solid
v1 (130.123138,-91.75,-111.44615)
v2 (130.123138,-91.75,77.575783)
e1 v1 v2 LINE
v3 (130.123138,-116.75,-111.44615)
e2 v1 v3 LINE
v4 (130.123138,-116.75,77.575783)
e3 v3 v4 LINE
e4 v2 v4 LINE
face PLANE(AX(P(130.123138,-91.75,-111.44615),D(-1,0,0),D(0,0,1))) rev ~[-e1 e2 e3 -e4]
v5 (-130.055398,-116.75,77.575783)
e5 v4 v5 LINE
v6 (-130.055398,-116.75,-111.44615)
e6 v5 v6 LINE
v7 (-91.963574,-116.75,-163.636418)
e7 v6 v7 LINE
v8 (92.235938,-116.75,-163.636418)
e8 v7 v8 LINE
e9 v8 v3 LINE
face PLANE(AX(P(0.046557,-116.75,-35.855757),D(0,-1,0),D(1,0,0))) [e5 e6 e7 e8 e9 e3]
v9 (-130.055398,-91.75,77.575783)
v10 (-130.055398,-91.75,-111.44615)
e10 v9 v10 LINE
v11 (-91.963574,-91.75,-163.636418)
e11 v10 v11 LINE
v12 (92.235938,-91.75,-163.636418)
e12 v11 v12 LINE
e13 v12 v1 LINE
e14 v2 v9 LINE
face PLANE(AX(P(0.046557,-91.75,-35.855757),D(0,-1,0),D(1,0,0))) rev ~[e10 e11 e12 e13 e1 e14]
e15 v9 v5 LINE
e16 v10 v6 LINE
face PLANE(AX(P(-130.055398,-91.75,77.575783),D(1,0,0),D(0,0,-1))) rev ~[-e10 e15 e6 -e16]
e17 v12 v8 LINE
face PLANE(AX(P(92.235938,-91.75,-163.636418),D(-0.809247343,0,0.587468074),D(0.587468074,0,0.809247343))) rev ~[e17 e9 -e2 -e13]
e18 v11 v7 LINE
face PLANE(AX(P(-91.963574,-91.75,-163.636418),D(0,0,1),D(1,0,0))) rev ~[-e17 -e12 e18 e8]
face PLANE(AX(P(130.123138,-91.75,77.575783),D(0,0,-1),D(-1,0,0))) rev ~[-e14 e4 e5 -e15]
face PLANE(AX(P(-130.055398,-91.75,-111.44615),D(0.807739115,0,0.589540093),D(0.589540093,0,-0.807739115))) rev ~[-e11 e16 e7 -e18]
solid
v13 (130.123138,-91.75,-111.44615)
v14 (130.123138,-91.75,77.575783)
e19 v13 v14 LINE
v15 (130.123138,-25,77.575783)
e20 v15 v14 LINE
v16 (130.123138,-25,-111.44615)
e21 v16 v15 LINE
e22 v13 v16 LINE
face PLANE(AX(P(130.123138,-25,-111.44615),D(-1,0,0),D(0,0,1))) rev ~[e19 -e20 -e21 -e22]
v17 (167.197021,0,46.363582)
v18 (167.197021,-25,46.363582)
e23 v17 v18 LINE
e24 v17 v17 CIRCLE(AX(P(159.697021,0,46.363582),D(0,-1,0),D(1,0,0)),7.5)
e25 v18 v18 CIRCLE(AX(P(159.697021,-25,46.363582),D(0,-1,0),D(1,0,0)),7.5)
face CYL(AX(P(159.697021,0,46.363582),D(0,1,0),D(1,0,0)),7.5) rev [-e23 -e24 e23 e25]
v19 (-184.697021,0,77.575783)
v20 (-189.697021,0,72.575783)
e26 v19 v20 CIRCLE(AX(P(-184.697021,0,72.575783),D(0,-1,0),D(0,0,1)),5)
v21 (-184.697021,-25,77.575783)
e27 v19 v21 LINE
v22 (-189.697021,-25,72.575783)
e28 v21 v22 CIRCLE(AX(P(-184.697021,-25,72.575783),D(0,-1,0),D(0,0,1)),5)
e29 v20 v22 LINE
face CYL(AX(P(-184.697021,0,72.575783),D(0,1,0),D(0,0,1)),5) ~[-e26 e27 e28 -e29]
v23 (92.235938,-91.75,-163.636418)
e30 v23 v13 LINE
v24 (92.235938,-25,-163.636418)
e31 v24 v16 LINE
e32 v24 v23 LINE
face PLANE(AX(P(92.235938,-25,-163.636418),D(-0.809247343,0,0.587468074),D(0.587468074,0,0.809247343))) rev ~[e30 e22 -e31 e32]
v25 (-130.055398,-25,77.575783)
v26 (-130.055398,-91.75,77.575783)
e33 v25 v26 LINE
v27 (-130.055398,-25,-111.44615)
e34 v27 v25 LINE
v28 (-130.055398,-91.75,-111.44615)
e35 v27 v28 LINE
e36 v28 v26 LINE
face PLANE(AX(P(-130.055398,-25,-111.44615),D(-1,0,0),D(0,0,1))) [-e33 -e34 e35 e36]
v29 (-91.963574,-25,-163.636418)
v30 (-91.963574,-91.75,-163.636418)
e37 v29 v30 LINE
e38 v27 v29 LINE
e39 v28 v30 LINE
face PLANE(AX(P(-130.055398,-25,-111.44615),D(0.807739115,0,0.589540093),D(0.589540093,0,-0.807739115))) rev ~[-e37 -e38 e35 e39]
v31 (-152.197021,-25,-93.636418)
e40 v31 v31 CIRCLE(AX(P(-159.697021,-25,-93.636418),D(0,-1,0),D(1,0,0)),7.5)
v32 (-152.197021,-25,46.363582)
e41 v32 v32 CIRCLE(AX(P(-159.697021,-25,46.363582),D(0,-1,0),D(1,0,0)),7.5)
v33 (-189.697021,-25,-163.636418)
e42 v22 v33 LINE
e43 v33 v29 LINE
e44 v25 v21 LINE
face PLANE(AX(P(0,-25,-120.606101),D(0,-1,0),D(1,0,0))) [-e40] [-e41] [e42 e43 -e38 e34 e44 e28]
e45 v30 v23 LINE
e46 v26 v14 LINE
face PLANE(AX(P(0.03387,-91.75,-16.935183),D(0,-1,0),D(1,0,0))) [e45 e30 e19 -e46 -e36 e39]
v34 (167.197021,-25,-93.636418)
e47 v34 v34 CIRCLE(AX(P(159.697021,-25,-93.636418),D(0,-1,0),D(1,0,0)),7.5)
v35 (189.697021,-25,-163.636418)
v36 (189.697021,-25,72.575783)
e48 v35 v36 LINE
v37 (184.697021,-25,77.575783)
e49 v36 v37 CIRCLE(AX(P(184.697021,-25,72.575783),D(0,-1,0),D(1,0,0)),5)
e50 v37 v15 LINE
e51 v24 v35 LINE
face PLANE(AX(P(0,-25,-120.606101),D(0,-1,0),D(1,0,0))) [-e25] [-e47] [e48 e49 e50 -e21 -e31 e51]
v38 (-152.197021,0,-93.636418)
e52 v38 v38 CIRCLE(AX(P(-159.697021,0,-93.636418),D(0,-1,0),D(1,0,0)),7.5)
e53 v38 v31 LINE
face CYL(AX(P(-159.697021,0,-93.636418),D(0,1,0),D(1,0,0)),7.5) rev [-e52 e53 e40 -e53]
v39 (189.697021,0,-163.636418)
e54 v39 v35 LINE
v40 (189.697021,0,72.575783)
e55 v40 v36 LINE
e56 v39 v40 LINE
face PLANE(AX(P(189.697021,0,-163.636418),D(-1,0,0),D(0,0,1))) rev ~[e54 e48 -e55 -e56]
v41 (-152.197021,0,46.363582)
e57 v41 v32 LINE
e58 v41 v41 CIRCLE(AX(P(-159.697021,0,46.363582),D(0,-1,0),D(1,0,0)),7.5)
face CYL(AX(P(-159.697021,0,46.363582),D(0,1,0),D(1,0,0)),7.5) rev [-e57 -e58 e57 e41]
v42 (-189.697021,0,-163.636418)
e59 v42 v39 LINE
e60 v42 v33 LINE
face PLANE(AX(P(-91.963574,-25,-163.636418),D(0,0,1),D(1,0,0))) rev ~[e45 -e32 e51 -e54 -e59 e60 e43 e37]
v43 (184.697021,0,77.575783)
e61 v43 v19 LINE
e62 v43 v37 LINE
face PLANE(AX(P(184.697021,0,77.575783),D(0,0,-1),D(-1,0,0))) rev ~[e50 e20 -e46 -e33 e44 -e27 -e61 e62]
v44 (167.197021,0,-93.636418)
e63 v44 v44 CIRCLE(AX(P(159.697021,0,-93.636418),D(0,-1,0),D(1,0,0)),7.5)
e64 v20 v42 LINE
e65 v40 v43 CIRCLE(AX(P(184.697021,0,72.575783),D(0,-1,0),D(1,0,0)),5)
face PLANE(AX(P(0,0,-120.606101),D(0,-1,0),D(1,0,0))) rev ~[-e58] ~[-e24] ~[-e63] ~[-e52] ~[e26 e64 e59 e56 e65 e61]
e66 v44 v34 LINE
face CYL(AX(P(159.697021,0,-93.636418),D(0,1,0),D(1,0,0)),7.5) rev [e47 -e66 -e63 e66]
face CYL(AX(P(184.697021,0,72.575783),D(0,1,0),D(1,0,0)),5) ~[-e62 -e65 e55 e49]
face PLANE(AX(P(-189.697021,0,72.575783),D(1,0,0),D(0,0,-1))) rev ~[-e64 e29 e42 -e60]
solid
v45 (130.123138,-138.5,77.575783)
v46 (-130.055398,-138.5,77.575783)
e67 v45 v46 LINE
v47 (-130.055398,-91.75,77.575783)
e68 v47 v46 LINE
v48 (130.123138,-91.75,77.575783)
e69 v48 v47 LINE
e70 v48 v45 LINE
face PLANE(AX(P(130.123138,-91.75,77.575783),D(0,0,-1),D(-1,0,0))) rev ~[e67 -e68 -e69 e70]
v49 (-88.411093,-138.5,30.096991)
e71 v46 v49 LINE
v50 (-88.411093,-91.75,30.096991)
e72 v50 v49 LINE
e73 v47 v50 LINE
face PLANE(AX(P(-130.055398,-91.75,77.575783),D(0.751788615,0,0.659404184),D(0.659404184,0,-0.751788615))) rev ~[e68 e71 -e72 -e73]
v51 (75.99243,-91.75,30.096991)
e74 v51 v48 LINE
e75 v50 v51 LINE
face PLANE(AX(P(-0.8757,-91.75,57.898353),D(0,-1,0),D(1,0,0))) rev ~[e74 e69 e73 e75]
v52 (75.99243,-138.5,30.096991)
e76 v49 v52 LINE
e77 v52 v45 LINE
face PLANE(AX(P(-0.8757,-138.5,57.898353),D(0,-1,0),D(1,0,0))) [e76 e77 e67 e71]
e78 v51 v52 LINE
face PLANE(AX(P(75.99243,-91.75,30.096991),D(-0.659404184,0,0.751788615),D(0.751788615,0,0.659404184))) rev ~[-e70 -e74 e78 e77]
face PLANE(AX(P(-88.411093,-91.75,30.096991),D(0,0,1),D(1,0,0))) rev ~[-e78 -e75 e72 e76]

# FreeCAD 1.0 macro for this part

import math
import FreeCAD as App
import Part
import Sketcher
Q = App.Units.Quantity


def add_polygon(sketch, points):
    """Adds a closed chain of lines whose ends are joined by coincident constraints."""
    first, n = sketch.GeometryCount, len(points)
    for a, b in zip(points, points[1:] + points[:1]):
        sketch.addGeometry(Part.LineSegment(App.Vector(*a, 0), App.Vector(*b, 0)), False)
    for i in range(n):
        sketch.addConstraint(Sketcher.Constraint("Coincident", first + i, 2, first + (i + 1) % n, 1))

doc = App.newDocument("Part")
body = doc.addObject("PartDesign::Body", "Body")

sketch1 = body.newObject("Sketcher::SketchObject", "Sketch")
sketch1.AttachmentSupport = (doc.getObject("XZ_Plane"), [""])
sketch1.MapMode = "FlatFace"
sketch1.addGeometry([
    Part.LineSegment(App.Vector(189.697021, -163.636418, 0), App.Vector(189.697021, 72.575783, 0)),
    Part.ArcOfCircle(Part.Circle(App.Vector(184.697021, 72.575783, 0), App.Vector(0, 0, 1), 5), math.radians(0), math.radians(90)),
    Part.LineSegment(App.Vector(184.697021, 77.575783, 0), App.Vector(-184.697021, 77.575783, 0)),
    Part.ArcOfCircle(Part.Circle(App.Vector(-184.697021, 72.575783, 0), App.Vector(0, 0, 1), 5), math.radians(90), math.radians(180)),
    Part.LineSegment(App.Vector(-189.697021, 72.575783, 0), App.Vector(-189.697021, -163.636418, 0)),
    Part.LineSegment(App.Vector(-189.697021, -163.636418, 0), App.Vector(189.697021, -163.636418, 0)),
    Part.Circle(App.Vector(-159.697021, -93.636418, 0), App.Vector(0, 0, 1), 7.5),
    Part.Circle(App.Vector(159.697021, -93.636418, 0), App.Vector(0, 0, 1), 7.5),
    Part.Circle(App.Vector(-159.697021, 46.363582, 0), App.Vector(0, 0, 1), 7.5),
    Part.Circle(App.Vector(159.697021, 46.363582, 0), App.Vector(0, 0, 1), 7.5),
], False)
sketch1.addConstraint([
    Sketcher.Constraint("Tangent", 0, 2, 1, 1),
    Sketcher.Constraint("Tangent", 1, 2, 2, 1),
    Sketcher.Constraint("Tangent", 2, 2, 3, 1),
    Sketcher.Constraint("Tangent", 3, 2, 4, 1),
    Sketcher.Constraint("Coincident", 4, 2, 5, 1),
    Sketcher.Constraint("Coincident", 5, 2, 0, 1),
    Sketcher.Constraint("Vertical", 0),
    Sketcher.Constraint("Horizontal", 2),
    Sketcher.Constraint("Vertical", 4),
    Sketcher.Constraint("Horizontal", 5),
    Sketcher.Constraint("Equal", 1, 3),
    Sketcher.Constraint("Equal", 6, 7),
    Sketcher.Constraint("Equal", 7, 8),
    Sketcher.Constraint("Equal", 8, 9),
    Sketcher.Constraint("Symmetric", 6, 3, 7, 3, -2),
    Sketcher.Constraint("Symmetric", 8, 3, 9, 3, -2),
    Sketcher.Constraint("Vertical", 6, 3, 8, 3),
    Sketcher.Constraint("Diameter", 6, Q("15 mm")),
    Sketcher.Constraint("Radius", 1, Q("5 mm")),
    Sketcher.Constraint("DistanceX", 3, 3, 6, 3, Q("25 mm")),
    Sketcher.Constraint("DistanceX", 7, 3, 1, 3, Q("25 mm")),
    Sketcher.Constraint("DistanceY", 6, 3, 8, 3, Q("140 mm")),
    Sketcher.Constraint("DistanceY", 4, 2, 6, 3, Q("70 mm")),
    Sketcher.Constraint("DistanceY", 0, 1, 0, 2, Q("236.212202 mm")),
    Sketcher.Constraint("DistanceX", 2, 2, 2, 1, Q("369.394041 mm")),
    Sketcher.Constraint("DistanceY", 6, 3, -1, 1, Q("93.636418 mm")),
])
pad1 = body.newObject("PartDesign::Pad", "Pad")
pad1.Profile = sketch1
pad1.Length = 25

sketch2 = body.newObject("Sketcher::SketchObject", "Sketch001")
sketch2.AttachmentSupport = (doc.getObject("XZ_Plane"), [""])
sketch2.MapMode = "FlatFace"
sketch2.AttachmentOffset = App.Placement(App.Vector(0, 0, 25), App.Rotation())
add_polygon(sketch2, [(-130.055398, 77.575783), (-130.055398, -111.44615), (130.123138, -111.44615), (130.123138, 77.575783)])
sketch2.addConstraint([
    Sketcher.Constraint("Vertical", 0),
    Sketcher.Constraint("Horizontal", 1),
    Sketcher.Constraint("Vertical", 2),
    Sketcher.Constraint("Horizontal", 3),
    Sketcher.Constraint("DistanceX", 1, 1, 1, 2, Q("260.178536 mm")),
    Sketcher.Constraint("DistanceY", 0, 2, 0, 1, Q("189.021933 mm")),
    Sketcher.Constraint("DistanceY", 0, 2, -1, 1, Q("111.44615 mm")),
    Sketcher.Constraint("DistanceX", -1, 1, 1, 2, Q("130.123138 mm")),
])
pad2 = body.newObject("PartDesign::Pad", "Pad001")
pad2.Profile = sketch2
pad2.Length = 42.5

sketch3 = body.newObject("Sketcher::SketchObject", "Sketch002")
sketch3.AttachmentSupport = (doc.getObject("XZ_Plane"), [""])
sketch3.MapMode = "FlatFace"
sketch3.AttachmentOffset = App.Placement(App.Vector(0, 0, 25), App.Rotation())
add_polygon(sketch3, [(-130.055398, 77.575783), (-130.055398, -111.44615), (-91.963574, -163.636418), (92.235938, -163.636418), (130.123138, -111.44615), (130.123138, 77.575783)])
sketch3.addConstraint([
    Sketcher.Constraint("Vertical", 0),
    Sketcher.Constraint("Horizontal", 2),
    Sketcher.Constraint("Vertical", 4),
    Sketcher.Constraint("Horizontal", 5),
    Sketcher.Constraint("Horizontal", 0, 2, 3, 2),
    Sketcher.Constraint("DistanceX", 2, 2, 3, 2, Q("37.887201 mm")),
    Sketcher.Constraint("DistanceY", 2, 2, 4, 2, Q("241.212202 mm")),
    Sketcher.Constraint("Distance", 1, Q("64.612778 mm")),
    Sketcher.Constraint("DistanceX", 2, 1, 2, 2, Q("184.199512 mm")),
    Sketcher.Constraint("DistanceX", 5, 2, 5, 1, Q("260.178536 mm")),
    Sketcher.Constraint("DistanceY", 0, 2, -1, 1, Q("111.44615 mm")),
    Sketcher.Constraint("DistanceX", -1, 1, 3, 2, Q("130.123138 mm")),
])
pad3 = body.newObject("PartDesign::Pad", "Pad002")
pad3.Profile = sketch3
pad3.Length = 66.75
body2 = doc.addObject("PartDesign::Body", "Body001")

sketch4 = body2.newObject("Sketcher::SketchObject", "Sketch003")
sketch4.AttachmentSupport = (doc.getObject("XZ_Plane001"), [""])
sketch4.MapMode = "FlatFace"
sketch4.AttachmentOffset = App.Placement(App.Vector(0, 0, 91.75), App.Rotation())
add_polygon(sketch4, [(130.123138, 77.575783), (-130.055398, 77.575783), (-88.411093, 30.096991), (75.99243, 30.096991)])
sketch4.addConstraint([
    Sketcher.Constraint("Horizontal", 0),
    Sketcher.Constraint("Horizontal", 2),
    Sketcher.Constraint("Perpendicular", 1, 3),
    Sketcher.Constraint("DistanceX", 0, 2, 0, 1, Q("260.178536 mm")),
    Sketcher.Constraint("DistanceX", 2, 1, 2, 2, Q("164.403523 mm")),
    Sketcher.Constraint("DistanceY", -1, 1, 1, 2, Q("30.096991 mm")),
    Sketcher.Constraint("DistanceX", -1, 1, 2, 2, Q("75.99243 mm")),
    Sketcher.Constraint("DistanceX", -1, 1, 3, 2, Q("130.123138 mm")),
])
pad4 = body2.newObject("PartDesign::Pad", "Pad003")
pad4.Profile = sketch4
pad4.Length = 46.75
body3 = doc.addObject("PartDesign::Body", "Body002")

sketch5 = body3.newObject("Sketcher::SketchObject", "Sketch004")
sketch5.AttachmentSupport = (doc.getObject("XZ_Plane002"), [""])
sketch5.MapMode = "FlatFace"
sketch5.AttachmentOffset = App.Placement(App.Vector(0, 0, 91.75), App.Rotation())
add_polygon(sketch5, [(-130.055398, -111.44615), (-91.963574, -163.636418), (92.235938, -163.636418), (130.123138, -111.44615), (130.123138, 77.575783), (-130.055398, 77.575783)])
sketch5.addConstraint([
    Sketcher.Constraint("Horizontal", 1),
    Sketcher.Constraint("Vertical", 3),
    Sketcher.Constraint("Horizontal", 4),
    Sketcher.Constraint("Vertical", 5),
    Sketcher.Constraint("Horizontal", 2, 2, 5, 2),
    Sketcher.Constraint("DistanceX", 1, 2, 2, 2, Q("37.887201 mm")),
    Sketcher.Constraint("DistanceY", 1, 2, 3, 2, Q("241.212202 mm")),
    Sketcher.Constraint("Distance", 0, Q("64.612778 mm")),
    Sketcher.Constraint("DistanceX", 1, 1, 1, 2, Q("184.199512 mm")),
    Sketcher.Constraint("DistanceX", 4, 2, 4, 1, Q("260.178536 mm")),
    Sketcher.Constraint("DistanceY", 0, 2, -1, 1, Q("163.636418 mm")),
    Sketcher.Constraint("DistanceX", -1, 1, 2, 2, Q("130.123138 mm")),
])
pad5 = body3.newObject("PartDesign::Pad", "Pad004")
pad5.Profile = sketch5
pad5.Length = 25

doc.recompute()
